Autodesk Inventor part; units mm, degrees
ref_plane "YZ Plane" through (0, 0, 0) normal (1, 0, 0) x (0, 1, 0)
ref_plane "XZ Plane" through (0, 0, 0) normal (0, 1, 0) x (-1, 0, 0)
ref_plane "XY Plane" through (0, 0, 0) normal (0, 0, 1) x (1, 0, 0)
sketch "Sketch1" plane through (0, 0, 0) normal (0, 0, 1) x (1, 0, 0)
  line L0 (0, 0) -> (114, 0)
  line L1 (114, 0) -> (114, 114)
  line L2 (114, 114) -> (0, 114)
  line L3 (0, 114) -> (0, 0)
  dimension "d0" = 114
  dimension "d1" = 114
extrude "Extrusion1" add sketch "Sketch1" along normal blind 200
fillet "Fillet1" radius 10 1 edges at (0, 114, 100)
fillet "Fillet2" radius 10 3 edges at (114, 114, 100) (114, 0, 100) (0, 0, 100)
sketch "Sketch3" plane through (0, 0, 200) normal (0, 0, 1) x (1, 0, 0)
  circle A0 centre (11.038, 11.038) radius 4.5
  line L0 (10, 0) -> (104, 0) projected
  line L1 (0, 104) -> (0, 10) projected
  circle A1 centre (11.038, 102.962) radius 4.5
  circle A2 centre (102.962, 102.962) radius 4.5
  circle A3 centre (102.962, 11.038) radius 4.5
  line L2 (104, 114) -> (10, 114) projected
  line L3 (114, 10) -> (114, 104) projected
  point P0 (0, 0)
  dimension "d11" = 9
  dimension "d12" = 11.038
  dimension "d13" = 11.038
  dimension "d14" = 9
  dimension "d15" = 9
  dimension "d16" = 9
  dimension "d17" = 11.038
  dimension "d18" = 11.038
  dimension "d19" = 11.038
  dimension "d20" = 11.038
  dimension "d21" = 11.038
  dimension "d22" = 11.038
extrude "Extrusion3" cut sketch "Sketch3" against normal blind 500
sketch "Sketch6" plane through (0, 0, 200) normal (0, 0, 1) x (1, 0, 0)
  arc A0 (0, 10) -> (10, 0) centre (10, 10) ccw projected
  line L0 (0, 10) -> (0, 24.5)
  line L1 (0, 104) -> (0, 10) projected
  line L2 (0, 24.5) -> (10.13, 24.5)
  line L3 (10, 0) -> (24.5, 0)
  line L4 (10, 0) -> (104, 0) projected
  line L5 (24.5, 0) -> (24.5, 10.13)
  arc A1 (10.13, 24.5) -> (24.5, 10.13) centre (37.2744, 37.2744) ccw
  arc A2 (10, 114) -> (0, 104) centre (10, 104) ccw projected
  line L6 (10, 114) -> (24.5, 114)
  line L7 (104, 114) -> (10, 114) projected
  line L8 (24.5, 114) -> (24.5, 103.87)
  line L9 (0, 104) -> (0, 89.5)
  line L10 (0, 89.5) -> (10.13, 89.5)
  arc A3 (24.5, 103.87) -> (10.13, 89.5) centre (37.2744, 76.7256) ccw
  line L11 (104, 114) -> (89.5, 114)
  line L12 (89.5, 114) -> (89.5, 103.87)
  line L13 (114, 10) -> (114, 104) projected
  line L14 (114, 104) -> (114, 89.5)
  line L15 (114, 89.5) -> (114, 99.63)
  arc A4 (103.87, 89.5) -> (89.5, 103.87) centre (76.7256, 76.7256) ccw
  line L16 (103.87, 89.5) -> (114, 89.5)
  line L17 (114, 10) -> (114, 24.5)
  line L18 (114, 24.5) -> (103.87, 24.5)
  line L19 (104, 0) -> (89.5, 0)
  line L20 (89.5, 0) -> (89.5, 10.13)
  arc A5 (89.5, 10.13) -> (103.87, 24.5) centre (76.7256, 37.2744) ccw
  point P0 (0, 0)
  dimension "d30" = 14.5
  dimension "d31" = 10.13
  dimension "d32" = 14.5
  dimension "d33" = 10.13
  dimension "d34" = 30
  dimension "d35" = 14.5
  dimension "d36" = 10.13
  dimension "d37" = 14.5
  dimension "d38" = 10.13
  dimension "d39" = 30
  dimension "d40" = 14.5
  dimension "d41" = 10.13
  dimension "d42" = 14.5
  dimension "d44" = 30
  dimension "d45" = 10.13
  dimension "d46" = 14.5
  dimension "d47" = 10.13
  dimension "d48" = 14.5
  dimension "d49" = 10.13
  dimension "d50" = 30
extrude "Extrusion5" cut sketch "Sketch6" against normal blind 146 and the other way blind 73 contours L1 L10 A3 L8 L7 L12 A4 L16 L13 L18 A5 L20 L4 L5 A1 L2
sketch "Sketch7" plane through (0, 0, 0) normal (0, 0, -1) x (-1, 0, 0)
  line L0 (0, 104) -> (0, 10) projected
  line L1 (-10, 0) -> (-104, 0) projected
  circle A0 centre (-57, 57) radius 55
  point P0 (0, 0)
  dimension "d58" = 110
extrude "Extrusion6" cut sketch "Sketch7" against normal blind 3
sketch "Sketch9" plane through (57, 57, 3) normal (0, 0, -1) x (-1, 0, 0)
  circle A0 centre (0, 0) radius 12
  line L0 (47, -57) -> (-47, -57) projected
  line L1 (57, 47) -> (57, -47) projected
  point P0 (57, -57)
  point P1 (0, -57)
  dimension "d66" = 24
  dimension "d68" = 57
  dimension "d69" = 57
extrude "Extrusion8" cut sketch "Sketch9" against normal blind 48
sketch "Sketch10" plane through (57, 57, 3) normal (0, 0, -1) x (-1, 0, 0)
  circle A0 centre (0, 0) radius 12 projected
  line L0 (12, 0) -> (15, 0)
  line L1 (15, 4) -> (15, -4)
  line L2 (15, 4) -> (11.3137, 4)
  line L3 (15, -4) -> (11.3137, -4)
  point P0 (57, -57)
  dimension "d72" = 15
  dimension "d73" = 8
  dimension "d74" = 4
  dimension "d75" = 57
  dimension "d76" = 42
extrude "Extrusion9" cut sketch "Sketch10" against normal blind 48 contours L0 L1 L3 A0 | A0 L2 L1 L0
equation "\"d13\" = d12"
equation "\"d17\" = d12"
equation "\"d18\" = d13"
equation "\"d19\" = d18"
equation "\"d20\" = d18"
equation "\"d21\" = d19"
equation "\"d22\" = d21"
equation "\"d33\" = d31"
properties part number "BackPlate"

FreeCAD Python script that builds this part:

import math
import FreeCAD as App
import Part
import Sketcher
from FreeCAD import Vector
Q = App.Units.Quantity


def edges_at(feature, points):
    """Names of the edges that pass closest to the given points."""
    edges = feature.Shape.Edges
    near = lambda p: min(range(len(edges)), key=lambda i: edges[i].distToShape(Part.Vertex(*p))[0])
    return sorted({f"Edge{near(p) + 1}" for p in points})


def add_polygon(sketch, points):
    """Adds a closed chain of lines whose ends are joined by coincident constraints."""
    first, n = sketch.GeometryCount, len(points)
    for a, b in zip(points, points[1:] + points[:1]):
        sketch.addGeometry(Part.LineSegment(App.Vector(*a, 0), App.Vector(*b, 0)), False)
    for i in range(n):
        sketch.addConstraint(Sketcher.Constraint("Coincident", first + i, 2, first + (i + 1) % n, 1))

doc = App.newDocument("Part")
body = doc.addObject("PartDesign::Body", "Body")

sketch1 = doc.addObject("Sketcher::SketchObject", "Sketch")
body.addObject(sketch1)
sketch1.AttachmentSupport = (doc.XY_Plane, [""])
sketch1.MapMode = "FlatFace"
add_polygon(sketch1, [(0, 114), (0, 0), (114, 0), (114, 114)])
sketch1.addConstraint(Sketcher.Constraint("Vertical", 0))
sketch1.addConstraint(Sketcher.Constraint("Horizontal", 1))
sketch1.addConstraint(Sketcher.Constraint("Vertical", 2))
sketch1.addConstraint(Sketcher.Constraint("Horizontal", 3))
sketch1.addConstraint(Sketcher.Constraint("Coincident", 0, 2, -1, 1))
sketch1.addConstraint(Sketcher.Constraint("Equal", 3, 0))
sketch1.addConstraint(Sketcher.Constraint("DistanceX", 1, 1, 1, 2, Q("114 mm")))
pad1 = doc.addObject("PartDesign::Pad", "Pad")
body.addObject(pad1)
pad1.Profile = sketch1
pad1.Length = 200
doc.recompute()

fillet = doc.addObject("PartDesign::Fillet", "Fillet")
body.addObject(fillet)
fillet.Base = (pad1, edges_at(pad1, [(0, 114, 100)]))
fillet.Radius = 10
doc.recompute()

fillet2 = doc.addObject("PartDesign::Fillet", "Fillet001")
body.addObject(fillet2)
fillet2.Base = (fillet, edges_at(fillet, [(114, 114, 100), (114, 0, 100), (0, 0, 100)]))
fillet2.Radius = 10

sketch2 = doc.addObject("Sketcher::SketchObject", "Sketch001")
body.addObject(sketch2)
sketch2.AttachmentSupport = (doc.XY_Plane, [""])
sketch2.MapMode = "FlatFace"
sketch2.AttachmentOffset = App.Placement(Vector(0, 0, 200), App.Rotation())
sketch2.addGeometry(Part.Circle(Vector(11.038, 11.038, 0), Vector(0, 0, 1), 4.5), False)
sketch2.addGeometry(Part.Circle(Vector(11.038, 102.962, 0), Vector(0, 0, 1), 4.5), False)
sketch2.addGeometry(Part.Circle(Vector(102.962, 102.962, 0), Vector(0, 0, 1), 4.5), False)
sketch2.addGeometry(Part.Circle(Vector(102.962, 11.038, 0), Vector(0, 0, 1), 4.5), False)
sketch2.addConstraint(Sketcher.Constraint("Equal", 0, 1))
sketch2.addConstraint(Sketcher.Constraint("Equal", 1, 2))
sketch2.addConstraint(Sketcher.Constraint("Equal", 2, 3))
sketch2.addConstraint(Sketcher.Constraint("Horizontal", 1, 3, 2, 3))
sketch2.addConstraint(Sketcher.Constraint("Horizontal", 0, 3, 3, 3))
sketch2.addConstraint(Sketcher.Constraint("Vertical", 0, 3, 1, 3))
sketch2.addConstraint(Sketcher.Constraint("Vertical", 2, 3, 3, 3))
sketch2.addConstraint(Sketcher.Constraint("Diameter", 0, Q("9 mm")))
sketch2.addConstraint(Sketcher.Constraint("DistanceX", -1, 1, 0, 3, Q("11.038 mm")))
sketch2.addConstraint(Sketcher.Constraint("DistanceY", -1, 1, 0, 3, Q("11.038 mm")))
sketch2.addConstraint(Sketcher.Constraint("DistanceY", -1, 1, 1, 3, Q("102.962 mm")))
sketch2.addConstraint(Sketcher.Constraint("DistanceX", -1, 1, 2, 3, Q("102.962 mm")))
pocket1 = doc.addObject("PartDesign::Pocket", "Pocket")
body.addObject(pocket1)
pocket1.Profile = sketch2
pocket1.Length = 500

sketch3 = doc.addObject("Sketcher::SketchObject", "Sketch002")
body.addObject(sketch3)
sketch3.AttachmentSupport = (doc.XY_Plane, [""])
sketch3.MapMode = "FlatFace"
sketch3.AttachmentOffset = App.Placement(Vector(0, 0, 200), App.Rotation())
sketch3.addGeometry(Part.LineSegment(Vector(0, 89.5, 0), Vector(0, 24.5, 0)), False)
sketch3.addGeometry(Part.LineSegment(Vector(0, 24.5, 0), Vector(10.13, 24.5, 0)), False)
sketch3.addGeometry(Part.ArcOfCircle(Part.Circle(Vector(37.2744, 37.2744, 0), Vector(0, 0, 1), 30.000062), math.radians(-154.797901), math.radians(-115.202099)), False)
sketch3.addGeometry(Part.LineSegment(Vector(24.5, 10.13, 0), Vector(24.5, 0, 0)), False)
sketch3.addGeometry(Part.LineSegment(Vector(24.5, 0, 0), Vector(89.5, 0, 0)), False)
sketch3.addGeometry(Part.LineSegment(Vector(89.5, 0, 0), Vector(89.5, 10.13, 0)), False)
sketch3.addGeometry(Part.ArcOfCircle(Part.Circle(Vector(76.7256, 37.2744, 0), Vector(0, 0, 1), 30.000062), math.radians(-64.797901), math.radians(-25.202099)), False)
sketch3.addGeometry(Part.LineSegment(Vector(103.87, 24.5, 0), Vector(114, 24.5, 0)), False)
sketch3.addGeometry(Part.LineSegment(Vector(114, 24.5, 0), Vector(114, 89.5, 0)), False)
sketch3.addGeometry(Part.LineSegment(Vector(114, 89.5, 0), Vector(103.87, 89.5, 0)), False)
sketch3.addGeometry(Part.ArcOfCircle(Part.Circle(Vector(76.7256, 76.7256, 0), Vector(0, 0, 1), 30.000062), math.radians(25.202099), math.radians(64.797901)), False)
sketch3.addGeometry(Part.LineSegment(Vector(89.5, 103.87, 0), Vector(89.5, 114, 0)), False)
sketch3.addGeometry(Part.LineSegment(Vector(89.5, 114, 0), Vector(24.5, 114, 0)), False)
sketch3.addGeometry(Part.LineSegment(Vector(24.5, 114, 0), Vector(24.5, 103.87, 0)), False)
sketch3.addGeometry(Part.ArcOfCircle(Part.Circle(Vector(37.2744, 76.7256, 0), Vector(0, 0, 1), 30.000062), math.radians(115.202099), math.radians(154.797901)), False)
sketch3.addGeometry(Part.LineSegment(Vector(10.13, 89.5, 0), Vector(0, 89.5, 0)), False)
sketch3.addConstraint(Sketcher.Constraint("Coincident", 0, 2, 1, 1))
sketch3.addConstraint(Sketcher.Constraint("Coincident", 1, 2, 2, 1))
sketch3.addConstraint(Sketcher.Constraint("Coincident", 2, 2, 3, 1))
sketch3.addConstraint(Sketcher.Constraint("Coincident", 3, 2, 4, 1))
sketch3.addConstraint(Sketcher.Constraint("Coincident", 4, 2, 5, 1))
sketch3.addConstraint(Sketcher.Constraint("Coincident", 5, 2, 6, 1))
sketch3.addConstraint(Sketcher.Constraint("Coincident", 6, 2, 7, 1))
sketch3.addConstraint(Sketcher.Constraint("Coincident", 7, 2, 8, 1))
sketch3.addConstraint(Sketcher.Constraint("Coincident", 8, 2, 9, 1))
sketch3.addConstraint(Sketcher.Constraint("Coincident", 9, 2, 10, 1))
sketch3.addConstraint(Sketcher.Constraint("Coincident", 10, 2, 11, 1))
sketch3.addConstraint(Sketcher.Constraint("Coincident", 11, 2, 12, 1))
sketch3.addConstraint(Sketcher.Constraint("Coincident", 12, 2, 13, 1))
sketch3.addConstraint(Sketcher.Constraint("Coincident", 13, 2, 14, 1))
sketch3.addConstraint(Sketcher.Constraint("Coincident", 14, 2, 15, 1))
sketch3.addConstraint(Sketcher.Constraint("Coincident", 15, 2, 0, 1))
sketch3.addConstraint(Sketcher.Constraint("Vertical", 0))
sketch3.addConstraint(Sketcher.Constraint("Horizontal", 1))
sketch3.addConstraint(Sketcher.Constraint("Vertical", 3))
sketch3.addConstraint(Sketcher.Constraint("Horizontal", 4))
sketch3.addConstraint(Sketcher.Constraint("Vertical", 5))
sketch3.addConstraint(Sketcher.Constraint("Horizontal", 7))
sketch3.addConstraint(Sketcher.Constraint("Vertical", 8))
sketch3.addConstraint(Sketcher.Constraint("Horizontal", 9))
sketch3.addConstraint(Sketcher.Constraint("Vertical", 11))
sketch3.addConstraint(Sketcher.Constraint("Horizontal", 12))
sketch3.addConstraint(Sketcher.Constraint("Vertical", 13))
sketch3.addConstraint(Sketcher.Constraint("Horizontal", 15))
sketch3.addConstraint(Sketcher.Constraint("Equal", 2, 6))
sketch3.addConstraint(Sketcher.Constraint("Equal", 6, 10))
sketch3.addConstraint(Sketcher.Constraint("Equal", 10, 14))
sketch3.addConstraint(Sketcher.Constraint("PointOnObject", 0, 2, -2))
sketch3.addConstraint(Sketcher.Constraint("PointOnObject", 3, 2, -1))
sketch3.addConstraint(Sketcher.Constraint("Horizontal", 2, 3, 6, 3))
sketch3.addConstraint(Sketcher.Constraint("Horizontal", 10, 3, 14, 3))
sketch3.addConstraint(Sketcher.Constraint("Horizontal", 2, 2, 5, 2))
sketch3.addConstraint(Sketcher.Constraint("Horizontal", 1, 2, 6, 2))
sketch3.addConstraint(Sketcher.Constraint("Horizontal", 10, 2, 13, 2))
sketch3.addConstraint(Sketcher.Constraint("Horizontal", 9, 2, 14, 2))
sketch3.addConstraint(Sketcher.Constraint("Vertical", 6, 3, 10, 3))
sketch3.addConstraint(Sketcher.Constraint("Vertical", 2, 3, 14, 3))
sketch3.addConstraint(Sketcher.Constraint("Vertical", 6, 2, 9, 2))
sketch3.addConstraint(Sketcher.Constraint("Vertical", 5, 2, 10, 2))
sketch3.addConstraint(Sketcher.Constraint("Equal", 1, 7))
sketch3.addConstraint(Sketcher.Constraint("Equal", 12, 0))
sketch3.addConstraint(Sketcher.Constraint("Equal", 15, 3))
sketch3.addConstraint(Sketcher.Constraint("Equal", 5, 11))
sketch3.addConstraint(Sketcher.Constraint("Radius", 2, Q("30 mm")))
sketch3.addConstraint(Sketcher.Constraint("DistanceX", 1, 1, 1, 2, Q("10.13 mm")))
sketch3.addConstraint(Sketcher.Constraint("DistanceX", 4, 1, 4, 2, Q("65 mm")))
sketch3.addConstraint(Sketcher.Constraint("DistanceX", -1, 1, 7, 2, Q("114 mm")))
sketch3.addConstraint(Sketcher.Constraint("DistanceY", -1, 1, 11, 2, Q("114 mm")))
pocket2 = doc.addObject("PartDesign::Pocket", "Pocket001")
body.addObject(pocket2)
pocket2.Profile = sketch3
pocket2.Type = "TwoLengths"
pocket2.Length = 146
pocket2.Length2 = 73

sketch4 = doc.addObject("Sketcher::SketchObject", "Sketch003")
body.addObject(sketch4)
sketch4.AttachmentSupport = (doc.XY_Plane, [""])
sketch4.MapMode = "FlatFace"
sketch4.addGeometry(Part.Circle(Vector(57, 57, 0), Vector(0, 0, 1), 55), False)
sketch4.addConstraint(Sketcher.Constraint("Diameter", 0, Q("110 mm")))
sketch4.addConstraint(Sketcher.Constraint("DistanceX", -1, 1, 0, 3, Q("57 mm")))
sketch4.addConstraint(Sketcher.Constraint("DistanceY", -1, 1, 0, 3, Q("57 mm")))
pocket3 = doc.addObject("PartDesign::Pocket", "Pocket002")
body.addObject(pocket3)
pocket3.Profile = sketch4
pocket3.Length = 3
pocket3.Reversed = True

sketch5 = doc.addObject("Sketcher::SketchObject", "Sketch004")
body.addObject(sketch5)
sketch5.AttachmentSupport = (doc.XY_Plane, [""])
sketch5.MapMode = "FlatFace"
sketch5.AttachmentOffset = App.Placement(Vector(0, 0, 3), App.Rotation())
sketch5.addGeometry(Part.Circle(Vector(57, 57, 0), Vector(0, 0, 1), 12), False)
sketch5.addConstraint(Sketcher.Constraint("Diameter", 0, Q("24 mm")))
sketch5.addConstraint(Sketcher.Constraint("DistanceX", -1, 1, 0, 3, Q("57 mm")))
sketch5.addConstraint(Sketcher.Constraint("DistanceY", -1, 1, 0, 3, Q("57 mm")))
pocket4 = doc.addObject("PartDesign::Pocket", "Pocket003")
body.addObject(pocket4)
pocket4.Profile = sketch5
pocket4.Length = 48
pocket4.Reversed = True

sketch6 = doc.addObject("Sketcher::SketchObject", "Sketch005")
body.addObject(sketch6)
sketch6.AttachmentSupport = (doc.XY_Plane, [""])
sketch6.MapMode = "FlatFace"
sketch6.AttachmentOffset = App.Placement(Vector(0, 0, 3), App.Rotation())
sketch6.addGeometry(Part.LineSegment(Vector(42, 53, 0), Vector(42, 61, 0)), False)
sketch6.addGeometry(Part.LineSegment(Vector(42, 61, 0), Vector(45.6863, 61, 0)), False)
sketch6.addGeometry(Part.ArcOfCircle(Part.Circle(Vector(57, 57, 0), Vector(0, 0, 1), 12), math.radians(160.528766), math.radians(199.471234)), False)
sketch6.addGeometry(Part.LineSegment(Vector(45.6863, 53, 0), Vector(42, 53, 0)), False)
sketch6.addConstraint(Sketcher.Constraint("Coincident", 0, 2, 1, 1))
sketch6.addConstraint(Sketcher.Constraint("Coincident", 1, 2, 2, 1))
sketch6.addConstraint(Sketcher.Constraint("Coincident", 2, 2, 3, 1))
sketch6.addConstraint(Sketcher.Constraint("Coincident", 3, 2, 0, 1))
sketch6.addConstraint(Sketcher.Constraint("Vertical", 0))
sketch6.addConstraint(Sketcher.Constraint("Horizontal", 1))
sketch6.addConstraint(Sketcher.Constraint("Horizontal", 3))
sketch6.addConstraint(Sketcher.Constraint("Vertical", 1, 2, 2, 2))
sketch6.addConstraint(Sketcher.Constraint("DistanceY", 0, 1, 0, 2, Q("8 mm")))
sketch6.addConstraint(Sketcher.Constraint("DistanceX", -1, 1, 2, 3, Q("57 mm")))
sketch6.addConstraint(Sketcher.Constraint("DistanceY", -1, 1, 2, 3, Q("57 mm")))
sketch6.addConstraint(Sketcher.Constraint("DistanceX", -1, 1, 0, 2, Q("42 mm")))
sketch6.addConstraint(Sketcher.Constraint("Radius", 2, Q("12 mm")))
pocket5 = doc.addObject("PartDesign::Pocket", "Pocket004")
body.addObject(pocket5)
pocket5.Profile = sketch6
pocket5.Length = 48
pocket5.Reversed = True

doc.recompute()
